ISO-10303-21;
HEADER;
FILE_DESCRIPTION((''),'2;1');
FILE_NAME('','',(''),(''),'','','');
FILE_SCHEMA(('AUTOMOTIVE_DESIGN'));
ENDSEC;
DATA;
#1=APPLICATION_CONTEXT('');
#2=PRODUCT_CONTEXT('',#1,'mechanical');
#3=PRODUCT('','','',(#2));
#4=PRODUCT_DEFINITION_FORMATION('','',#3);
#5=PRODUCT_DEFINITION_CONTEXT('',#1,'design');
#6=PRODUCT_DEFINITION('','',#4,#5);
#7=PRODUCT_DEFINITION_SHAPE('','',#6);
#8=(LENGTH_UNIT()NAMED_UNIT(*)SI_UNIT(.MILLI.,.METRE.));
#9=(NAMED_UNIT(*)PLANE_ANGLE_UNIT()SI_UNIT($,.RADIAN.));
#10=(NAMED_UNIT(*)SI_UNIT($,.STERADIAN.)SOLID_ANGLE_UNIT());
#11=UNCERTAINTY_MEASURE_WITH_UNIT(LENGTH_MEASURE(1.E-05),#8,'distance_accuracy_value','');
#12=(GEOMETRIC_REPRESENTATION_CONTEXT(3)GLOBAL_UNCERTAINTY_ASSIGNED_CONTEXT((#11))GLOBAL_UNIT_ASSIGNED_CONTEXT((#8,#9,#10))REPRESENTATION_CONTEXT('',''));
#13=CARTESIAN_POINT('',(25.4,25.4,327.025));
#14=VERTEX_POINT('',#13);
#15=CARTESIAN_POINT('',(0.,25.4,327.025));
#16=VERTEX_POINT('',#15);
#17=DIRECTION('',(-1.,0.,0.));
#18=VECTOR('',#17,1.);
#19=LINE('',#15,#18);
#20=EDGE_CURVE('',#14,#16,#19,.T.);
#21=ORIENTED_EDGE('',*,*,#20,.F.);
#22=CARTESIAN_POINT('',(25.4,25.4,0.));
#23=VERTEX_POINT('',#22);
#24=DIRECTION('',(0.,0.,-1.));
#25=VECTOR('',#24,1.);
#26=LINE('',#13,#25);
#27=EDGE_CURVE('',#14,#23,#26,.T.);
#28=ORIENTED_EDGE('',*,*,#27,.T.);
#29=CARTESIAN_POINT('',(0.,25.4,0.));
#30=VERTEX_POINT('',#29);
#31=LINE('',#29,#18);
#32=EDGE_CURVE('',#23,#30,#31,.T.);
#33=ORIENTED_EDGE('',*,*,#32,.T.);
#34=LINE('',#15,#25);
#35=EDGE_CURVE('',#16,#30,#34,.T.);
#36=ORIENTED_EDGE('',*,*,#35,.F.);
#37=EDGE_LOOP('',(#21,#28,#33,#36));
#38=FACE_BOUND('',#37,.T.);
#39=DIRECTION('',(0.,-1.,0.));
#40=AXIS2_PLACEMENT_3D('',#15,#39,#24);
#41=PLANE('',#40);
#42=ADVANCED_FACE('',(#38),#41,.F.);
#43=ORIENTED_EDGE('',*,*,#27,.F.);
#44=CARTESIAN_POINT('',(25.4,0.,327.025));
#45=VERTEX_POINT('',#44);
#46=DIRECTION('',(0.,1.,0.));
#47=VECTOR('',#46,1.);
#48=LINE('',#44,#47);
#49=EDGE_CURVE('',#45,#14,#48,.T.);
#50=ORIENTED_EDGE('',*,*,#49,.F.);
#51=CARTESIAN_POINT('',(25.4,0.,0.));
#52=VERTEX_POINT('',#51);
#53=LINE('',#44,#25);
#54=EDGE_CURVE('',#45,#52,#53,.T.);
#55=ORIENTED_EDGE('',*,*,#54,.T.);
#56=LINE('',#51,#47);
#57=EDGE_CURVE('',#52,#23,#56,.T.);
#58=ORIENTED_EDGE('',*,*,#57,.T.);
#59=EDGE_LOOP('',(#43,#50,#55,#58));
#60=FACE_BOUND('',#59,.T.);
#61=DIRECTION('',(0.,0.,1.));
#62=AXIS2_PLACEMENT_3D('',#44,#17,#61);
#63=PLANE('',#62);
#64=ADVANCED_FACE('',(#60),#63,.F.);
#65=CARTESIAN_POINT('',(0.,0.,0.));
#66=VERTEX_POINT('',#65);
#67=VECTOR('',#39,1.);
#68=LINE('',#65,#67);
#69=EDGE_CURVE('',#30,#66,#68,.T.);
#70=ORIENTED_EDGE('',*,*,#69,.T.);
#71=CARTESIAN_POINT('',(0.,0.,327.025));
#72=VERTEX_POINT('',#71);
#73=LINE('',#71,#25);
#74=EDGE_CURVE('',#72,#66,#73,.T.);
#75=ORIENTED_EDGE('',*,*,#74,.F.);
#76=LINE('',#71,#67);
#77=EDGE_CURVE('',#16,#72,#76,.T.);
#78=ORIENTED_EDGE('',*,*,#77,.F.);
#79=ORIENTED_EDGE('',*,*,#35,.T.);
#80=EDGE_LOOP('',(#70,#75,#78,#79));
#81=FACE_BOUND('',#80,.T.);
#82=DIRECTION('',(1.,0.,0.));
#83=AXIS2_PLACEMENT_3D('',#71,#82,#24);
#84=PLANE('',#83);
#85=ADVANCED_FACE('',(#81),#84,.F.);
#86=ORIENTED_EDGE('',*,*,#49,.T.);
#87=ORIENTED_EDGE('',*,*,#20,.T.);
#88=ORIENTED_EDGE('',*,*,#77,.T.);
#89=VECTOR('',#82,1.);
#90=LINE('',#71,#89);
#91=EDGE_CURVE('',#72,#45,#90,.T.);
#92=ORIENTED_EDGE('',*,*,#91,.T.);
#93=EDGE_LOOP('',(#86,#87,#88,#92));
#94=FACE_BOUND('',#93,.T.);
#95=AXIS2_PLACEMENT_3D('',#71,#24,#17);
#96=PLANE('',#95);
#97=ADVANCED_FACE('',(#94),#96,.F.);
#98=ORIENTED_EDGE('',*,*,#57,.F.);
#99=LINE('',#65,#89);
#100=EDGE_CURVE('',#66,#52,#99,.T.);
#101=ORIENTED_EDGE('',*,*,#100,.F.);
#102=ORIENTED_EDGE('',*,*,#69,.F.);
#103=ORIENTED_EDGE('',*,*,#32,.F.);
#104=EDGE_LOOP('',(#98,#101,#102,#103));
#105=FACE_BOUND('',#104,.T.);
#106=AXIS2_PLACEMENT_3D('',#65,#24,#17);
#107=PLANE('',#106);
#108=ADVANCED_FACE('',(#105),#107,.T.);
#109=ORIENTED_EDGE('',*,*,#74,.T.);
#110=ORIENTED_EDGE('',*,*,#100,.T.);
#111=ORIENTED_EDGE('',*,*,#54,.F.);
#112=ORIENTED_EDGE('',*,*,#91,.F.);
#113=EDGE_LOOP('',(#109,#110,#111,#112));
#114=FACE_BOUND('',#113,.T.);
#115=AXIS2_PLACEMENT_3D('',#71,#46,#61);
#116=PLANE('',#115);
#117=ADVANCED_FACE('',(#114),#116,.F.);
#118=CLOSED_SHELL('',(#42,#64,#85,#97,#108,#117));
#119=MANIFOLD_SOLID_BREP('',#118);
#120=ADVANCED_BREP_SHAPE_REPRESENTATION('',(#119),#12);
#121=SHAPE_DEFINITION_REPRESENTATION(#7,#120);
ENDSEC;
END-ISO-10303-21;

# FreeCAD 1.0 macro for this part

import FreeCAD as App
import Part
import Sketcher

V = App.Vector
Q = App.Units.Quantity


def add_polygon(sketch, points):
    """Adds a closed chain of lines whose ends are joined by coincident constraints."""
    first, n = sketch.GeometryCount, len(points)
    for a, b in zip(points, points[1:] + points[:1]):
        sketch.addGeometry(Part.LineSegment(App.Vector(*a, 0), App.Vector(*b, 0)), False)
    for i in range(n):
        sketch.addConstraint(Sketcher.Constraint("Coincident", first + i, 2, first + (i + 1) % n, 1))

doc = App.newDocument("Part")
body = doc.addObject("PartDesign::Body", "Body")

# Sketch on XY plane
sketch1 = doc.addObject("Sketcher::SketchObject", "Sketch")
body.addObject(sketch1)
sketch1.AttachmentSupport = (doc.XY_Plane, [""])
sketch1.MapMode = "FlatFace"
add_polygon(sketch1, [(0, 25), (0, 0), (25, 0), (25, 25)])  # lines 0-3
sketch1.addConstraint([
    Sketcher.Constraint("Vertical", 0),
    Sketcher.Constraint("Horizontal", 1),
    Sketcher.Constraint("Vertical", 2),
    Sketcher.Constraint("Horizontal", 3),
    Sketcher.Constraint("Coincident", 0, 2, -1, 1),
    Sketcher.Constraint("Equal", 3, 0),
    Sketcher.Constraint("DistanceX", 1, 1, 1, 2, Q("1 in")),
])
pad1 = doc.addObject("PartDesign::Pad", "Pad")
body.addObject(pad1)
pad1.Profile = sketch1
pad1.Length = Q("12.875 in")

doc.recompute()
